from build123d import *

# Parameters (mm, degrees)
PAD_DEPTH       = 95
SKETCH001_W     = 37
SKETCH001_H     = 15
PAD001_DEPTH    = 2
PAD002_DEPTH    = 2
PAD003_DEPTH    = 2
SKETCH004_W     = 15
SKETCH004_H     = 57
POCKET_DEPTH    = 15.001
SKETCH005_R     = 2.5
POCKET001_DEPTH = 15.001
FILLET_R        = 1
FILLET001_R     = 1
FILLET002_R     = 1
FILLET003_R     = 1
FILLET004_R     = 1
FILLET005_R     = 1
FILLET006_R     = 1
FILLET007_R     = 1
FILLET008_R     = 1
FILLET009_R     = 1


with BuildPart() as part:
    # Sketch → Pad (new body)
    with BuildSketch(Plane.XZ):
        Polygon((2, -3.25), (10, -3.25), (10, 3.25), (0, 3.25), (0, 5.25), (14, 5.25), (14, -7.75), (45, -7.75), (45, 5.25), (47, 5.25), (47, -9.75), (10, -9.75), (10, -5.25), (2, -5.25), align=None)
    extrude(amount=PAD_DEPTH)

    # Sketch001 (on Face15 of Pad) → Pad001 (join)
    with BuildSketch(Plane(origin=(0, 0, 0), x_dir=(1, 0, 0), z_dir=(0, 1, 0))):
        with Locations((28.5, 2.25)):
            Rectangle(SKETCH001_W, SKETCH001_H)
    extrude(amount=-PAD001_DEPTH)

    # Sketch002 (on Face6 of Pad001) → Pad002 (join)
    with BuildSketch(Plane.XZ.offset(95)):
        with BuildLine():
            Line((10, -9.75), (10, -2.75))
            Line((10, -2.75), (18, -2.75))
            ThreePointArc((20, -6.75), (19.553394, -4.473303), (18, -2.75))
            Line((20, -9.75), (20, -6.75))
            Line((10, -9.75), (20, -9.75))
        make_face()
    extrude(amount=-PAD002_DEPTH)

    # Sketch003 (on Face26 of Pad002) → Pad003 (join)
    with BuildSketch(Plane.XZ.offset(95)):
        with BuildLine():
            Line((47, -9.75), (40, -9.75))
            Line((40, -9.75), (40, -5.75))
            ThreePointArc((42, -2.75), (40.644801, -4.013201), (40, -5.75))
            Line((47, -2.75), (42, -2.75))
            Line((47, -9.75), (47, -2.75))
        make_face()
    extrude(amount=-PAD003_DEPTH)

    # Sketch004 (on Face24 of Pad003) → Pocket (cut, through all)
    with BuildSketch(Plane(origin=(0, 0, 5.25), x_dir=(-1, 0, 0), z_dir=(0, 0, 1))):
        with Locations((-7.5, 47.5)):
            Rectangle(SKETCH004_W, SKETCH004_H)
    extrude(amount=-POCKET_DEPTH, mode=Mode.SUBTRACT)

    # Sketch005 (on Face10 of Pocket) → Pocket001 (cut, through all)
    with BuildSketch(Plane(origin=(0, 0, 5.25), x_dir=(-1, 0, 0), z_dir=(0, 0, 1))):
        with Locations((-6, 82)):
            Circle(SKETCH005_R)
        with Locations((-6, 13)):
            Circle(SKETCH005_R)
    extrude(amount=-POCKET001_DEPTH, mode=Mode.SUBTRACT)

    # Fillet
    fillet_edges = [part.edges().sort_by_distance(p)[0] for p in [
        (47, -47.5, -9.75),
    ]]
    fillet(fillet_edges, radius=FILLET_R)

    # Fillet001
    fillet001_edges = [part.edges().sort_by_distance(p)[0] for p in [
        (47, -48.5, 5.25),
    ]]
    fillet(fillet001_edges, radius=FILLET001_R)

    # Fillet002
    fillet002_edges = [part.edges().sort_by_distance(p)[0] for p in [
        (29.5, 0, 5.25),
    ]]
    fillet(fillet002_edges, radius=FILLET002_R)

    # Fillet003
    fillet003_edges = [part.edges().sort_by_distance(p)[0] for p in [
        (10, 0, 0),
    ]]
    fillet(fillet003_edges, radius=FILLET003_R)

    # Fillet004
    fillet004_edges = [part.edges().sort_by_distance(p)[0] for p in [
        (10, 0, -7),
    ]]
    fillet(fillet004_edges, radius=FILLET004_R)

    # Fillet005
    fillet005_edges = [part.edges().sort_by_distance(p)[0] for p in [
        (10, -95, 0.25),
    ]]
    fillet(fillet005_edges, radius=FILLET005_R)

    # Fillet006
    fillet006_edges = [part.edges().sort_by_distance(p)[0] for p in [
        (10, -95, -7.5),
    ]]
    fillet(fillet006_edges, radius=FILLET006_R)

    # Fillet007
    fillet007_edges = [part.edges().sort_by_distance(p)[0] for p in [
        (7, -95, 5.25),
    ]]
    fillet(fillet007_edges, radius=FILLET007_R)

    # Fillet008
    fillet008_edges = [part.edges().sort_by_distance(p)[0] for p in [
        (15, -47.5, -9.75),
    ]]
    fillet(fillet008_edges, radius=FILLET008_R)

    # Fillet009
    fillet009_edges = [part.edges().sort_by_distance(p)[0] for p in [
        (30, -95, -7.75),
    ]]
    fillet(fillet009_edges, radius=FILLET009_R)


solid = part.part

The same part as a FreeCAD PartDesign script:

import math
import FreeCAD as App
import Part
import Sketcher
from FreeCAD import Vector


def edges_at(feature, points):
    """Names of the edges that pass closest to the given points."""
    edges = feature.Shape.Edges
    near = lambda p: min(range(len(edges)), key=lambda i: edges[i].distToShape(Part.Vertex(*p))[0])
    return sorted({f"Edge{near(p) + 1}" for p in points})

doc = App.newDocument("Part")
params = doc.addObject("Spreadsheet::Sheet", "Params")
for row, (alias, value) in enumerate([
    ("sketch1_width", "8 mm"),
    ("sketch1_width2", "37 mm"),
    ("sketch1_width3", "2 mm"),
    ("sketch1_width4", "31 mm"),
    ("sketch1_width5", "14 mm"),
    ("pad1_length", "95 mm"),
    ("sketch2_width", "37 mm"),
    ("sketch2_height", "15 mm"),
    ("pad2_length", "2 mm"),
    ("sketch3_width", "10 mm"),
    ("sketch3_width2", "8 mm"),
    ("sketch3_height", "7 mm"),
    ("sketch3_height2", "3 mm"),
    ("sketch3_radius", "4.35 mm"),
    ("pad3_length", "2 mm"),
    ("sketch4_width", "7 mm"),
    ("sketch4_width2", "5 mm"),
    ("sketch4_height", "4 mm"),
    ("pad4_length", "2 mm"),
    ("sketch5_width", "15 mm"),
    ("sketch5_height", "57 mm"),
    ("sketch6_diameter", "5 mm"),
    ("fillet_radius", "1 mm"),
    ("fillet2_radius", "1 mm"),
    ("fillet3_radius", "1 mm"),
    ("fillet4_radius", "1 mm"),
    ("fillet5_radius", "1 mm"),
    ("fillet6_radius", "1 mm"),
    ("fillet7_radius", "1 mm"),
    ("fillet8_radius", "1 mm"),
    ("fillet9_radius", "1 mm"),
    ("fillet10_radius", "1 mm"),
], start=1):
    params.set(f"A{row}", alias)
    params.set(f"B{row}", "=" + value)
    params.setAlias(f"B{row}", alias)

body = doc.addObject("PartDesign::Body", "Body")

# Sketch on XZ plane
sketch1 = body.newObject("Sketcher::SketchObject", "Sketch")
sketch1.AttachmentSupport = (doc.getObject("XZ_Plane"), [""])
sketch1.MapMode = "FlatFace"
sketch1.addGeometry([
    Part.LineSegment(Vector(10, -3.25, 0), Vector(2, -3.25, 0)),  # 0
    Part.LineSegment(Vector(2, -3.25, 0), Vector(2, -5.25, 0)),  # 1
    Part.LineSegment(Vector(2, -5.25, 0), Vector(10, -5.25, 0)),  # 2
    Part.LineSegment(Vector(10, -5.25, 0), Vector(10, -9.75, 0)),  # 3
    Part.LineSegment(Vector(10, -9.75, 0), Vector(47, -9.75, 0)),  # 4
    Part.LineSegment(Vector(47, -9.75, 0), Vector(47, 5.25, 0)),  # 5
    Part.LineSegment(Vector(47, 5.25, 0), Vector(45, 5.25, 0)),  # 6
    Part.LineSegment(Vector(45, 5.25, 0), Vector(45, -7.75, 0)),  # 7
    Part.LineSegment(Vector(45, -7.75, 0), Vector(14, -7.75, 0)),  # 8
    Part.LineSegment(Vector(14, -7.75, 0), Vector(14, 5.25, 0)),  # 9
    Part.LineSegment(Vector(14, 5.25, 0), Vector(0, 5.25, 0)),  # 10
    Part.LineSegment(Vector(0, 5.25, 0), Vector(0, 3.25, 0)),  # 11
    Part.LineSegment(Vector(0, 3.25, 0), Vector(10, 3.25, 0)),  # 12
    Part.LineSegment(Vector(10, 3.25, 0), Vector(10, -3.25, 0)),  # 13
], False)
sketch1.addConstraint([
    Sketcher.Constraint("Coincident", 0, 2, 1, 1),
    Sketcher.Constraint("Coincident", 1, 2, 2, 1),
    Sketcher.Constraint("Coincident", 2, 2, 3, 1),
    Sketcher.Constraint("Coincident", 3, 2, 4, 1),
    Sketcher.Constraint("Coincident", 4, 2, 5, 1),
    Sketcher.Constraint("Coincident", 5, 2, 6, 1),
    Sketcher.Constraint("Coincident", 6, 2, 7, 1),
    Sketcher.Constraint("Coincident", 7, 2, 8, 1),
    Sketcher.Constraint("Coincident", 8, 2, 9, 1),
    Sketcher.Constraint("Coincident", 9, 2, 10, 1),
    Sketcher.Constraint("Coincident", 10, 2, 11, 1),
    Sketcher.Constraint("Coincident", 11, 2, 12, 1),
    Sketcher.Constraint("Coincident", 12, 2, 13, 1),
    Sketcher.Constraint("Coincident", 13, 2, 0, 1),
    Sketcher.Constraint("Horizontal", 0),
    Sketcher.Constraint("Vertical", 1),
    Sketcher.Constraint("Horizontal", 2),
    Sketcher.Constraint("Vertical", 3),
    Sketcher.Constraint("Horizontal", 4),
    Sketcher.Constraint("Vertical", 5),
    Sketcher.Constraint("Horizontal", 6),
    Sketcher.Constraint("Vertical", 7),
    Sketcher.Constraint("Horizontal", 8),
    Sketcher.Constraint("Vertical", 9),
    Sketcher.Constraint("Horizontal", 10),
    Sketcher.Constraint("Vertical", 11),
    Sketcher.Constraint("Horizontal", 12),
    Sketcher.Constraint("Vertical", 13),
    Sketcher.Constraint("PointOnObject", 10, 2, -2),
    Sketcher.Constraint("Horizontal", 6, 2, 9, 2),
    Sketcher.Constraint("Vertical", 3, 2, 12, 2),
    Sketcher.Constraint("Equal", 6, 1),
    Sketcher.Constraint("Equal", 1, 11),
    Sketcher.Constraint("DistanceX", 0, 2, 0, 1, 8.0),
    Sketcher.Constraint("DistanceX", 4, 1, 4, 2, 37.0),
    Sketcher.Constraint("DistanceX", 6, 2, 6, 1, 2.0),
    Sketcher.Constraint("DistanceX", 8, 2, 8, 1, 31.0),
    Sketcher.Constraint("DistanceX", 10, 2, 10, 1, 14.0),
    Sketcher.Constraint("DistanceY", 5, 1, 5, 2, 15.0),
    Sketcher.Constraint("DistanceY", 7, 2, 7, 1, 13.0),
    Sketcher.Constraint("DistanceY", 3, 2, 3, 1, 4.5),
    Sketcher.Constraint("DistanceY", 0, 2, -1, 1, 3.25),
])
sketch1.setExpression("Constraints[33]", "Params.sketch1_width")
sketch1.setExpression("Constraints[34]", "Params.sketch1_width2")
sketch1.setExpression("Constraints[35]", "Params.sketch1_width3")
sketch1.setExpression("Constraints[36]", "Params.sketch1_width4")
sketch1.setExpression("Constraints[37]", "Params.sketch1_width5")
pad1 = body.newObject("PartDesign::Pad", "Pad")
pad1.Profile = sketch1
pad1.setExpression("Length", "Params.pad1_length")

# Sketch on XZ plane
sketch2 = body.newObject("Sketcher::SketchObject", "Sketch001")
sketch2.AttachmentSupport = (doc.getObject("XZ_Plane"), [""])
sketch2.MapMode = "FlatFace"
sketch2.addGeometry([
    Part.LineSegment(Vector(10, -9.75, 0), Vector(10, 5.25, 0)),
    Part.LineSegment(Vector(10, 5.25, 0), Vector(47, 5.25, 0)),
    Part.LineSegment(Vector(47, 5.25, 0), Vector(47, -9.75, 0)),
    Part.LineSegment(Vector(47, -9.75, 0), Vector(10, -9.75, 0)),
], False)
sketch2.addConstraint([
    Sketcher.Constraint("Coincident", 0, 2, 1, 1),
    Sketcher.Constraint("Coincident", 1, 2, 2, 1),
    Sketcher.Constraint("Coincident", 2, 2, 3, 1),
    Sketcher.Constraint("Coincident", 3, 2, 0, 1),
    Sketcher.Constraint("Vertical", 0),
    Sketcher.Constraint("Horizontal", 1),
    Sketcher.Constraint("Vertical", 2),
    Sketcher.Constraint("Horizontal", 3),
    Sketcher.Constraint("DistanceX", 1, 1, 1, 2, 37.0),
    Sketcher.Constraint("DistanceY", 0, 1, 0, 2, 15.0),
    Sketcher.Constraint("DistanceX", -1, 1, 0, 2, 10.0),
    Sketcher.Constraint("DistanceY", -1, 1, 0, 2, 5.25),
])
sketch2.setExpression("Constraints[8]", "Params.sketch2_width")
sketch2.setExpression("Constraints[9]", "Params.sketch2_height")
pad2 = body.newObject("PartDesign::Pad", "Pad001")
pad2.Profile = sketch2
pad2.setExpression("Length", "Params.pad2_length")

# Sketch on XZ plane
sketch3 = body.newObject("Sketcher::SketchObject", "Sketch002")
sketch3.AttachmentSupport = (doc.getObject("XZ_Plane"), [""])
sketch3.MapMode = "FlatFace"
sketch3.AttachmentOffset = App.Placement(Vector(0, 0, 95), App.Rotation())
sketch3.addGeometry([
    Part.LineSegment(Vector(10, -2.75, 0), Vector(10, -9.75, 0)),  # 0
    Part.LineSegment(Vector(10, -9.75, 0), Vector(20, -9.75, 0)),  # 1
    Part.LineSegment(Vector(20, -9.75, 0), Vector(20, -6.75, 0)),  # 2
    Part.ArcOfCircle(Part.Circle(Vector(15.662635, -6.418682, 0), Vector(0, 0, 1), 4.35), math.radians(-4.368162), math.radians(57.498265)),  # 3
    Part.LineSegment(Vector(18, -2.75, 0), Vector(10, -2.75, 0)),  # 4
], False)
sketch3.addConstraint([
    Sketcher.Constraint("Coincident", 0, 2, 1, 1),
    Sketcher.Constraint("Coincident", 1, 2, 2, 1),
    Sketcher.Constraint("Coincident", 2, 2, 3, 1),
    Sketcher.Constraint("Coincident", 3, 2, 4, 1),
    Sketcher.Constraint("Coincident", 4, 2, 0, 1),
    Sketcher.Constraint("Vertical", 0),
    Sketcher.Constraint("Horizontal", 1),
    Sketcher.Constraint("Vertical", 2),
    Sketcher.Constraint("Horizontal", 4),
    Sketcher.Constraint("DistanceX", 1, 1, 1, 2, 10.0),
    Sketcher.Constraint("DistanceX", 4, 2, 4, 1, 8.0),
    Sketcher.Constraint("DistanceY", 0, 2, 0, 1, 7.0),
    Sketcher.Constraint("DistanceY", 2, 1, 2, 2, 3.0),
    Sketcher.Constraint("Radius", 3, 4.35),
    Sketcher.Constraint("DistanceX", -1, 1, 0, 2, 10.0),
    Sketcher.Constraint("DistanceY", 0, 2, -1, 1, 9.75),
])
sketch3.setExpression("Constraints[9]", "Params.sketch3_width")
sketch3.setExpression("Constraints[10]", "Params.sketch3_width2")
sketch3.setExpression("Constraints[11]", "Params.sketch3_height")
sketch3.setExpression("Constraints[12]", "Params.sketch3_height2")
sketch3.setExpression("Constraints[13]", "Params.sketch3_radius")
pad3 = body.newObject("PartDesign::Pad", "Pad002")
pad3.Profile = sketch3
pad3.setExpression("Length", "Params.pad3_length")
pad3.Reversed = True

# Sketch on XZ plane
sketch4 = body.newObject("Sketcher::SketchObject", "Sketch003")
sketch4.AttachmentSupport = (doc.getObject("XZ_Plane"), [""])
sketch4.MapMode = "FlatFace"
sketch4.AttachmentOffset = App.Placement(Vector(0, 0, 95), App.Rotation())
sketch4.addGeometry([
    Part.LineSegment(Vector(40, -9.75, 0), Vector(47, -9.75, 0)),  # 0
    Part.LineSegment(Vector(47, -9.75, 0), Vector(47, -2.75, 0)),  # 1
    Part.LineSegment(Vector(47, -2.75, 0), Vector(42, -2.75, 0)),  # 2
    Part.ArcOfCircle(Part.Circle(Vector(43.989641, -6.243094, 0), Vector(0, 0, 1), 4.019997), math.radians(119.665522), math.radians(172.954343)),  # 3
    Part.LineSegment(Vector(40, -5.75, 0), Vector(40, -9.75, 0)),  # 4
], False)
sketch4.addConstraint([
    Sketcher.Constraint("Coincident", 0, 2, 1, 1),
    Sketcher.Constraint("Coincident", 1, 2, 2, 1),
    Sketcher.Constraint("Coincident", 2, 2, 3, 1),
    Sketcher.Constraint("Coincident", 3, 2, 4, 1),
    Sketcher.Constraint("Coincident", 4, 2, 0, 1),
    Sketcher.Constraint("Horizontal", 0),
    Sketcher.Constraint("Vertical", 1),
    Sketcher.Constraint("Horizontal", 2),
    Sketcher.Constraint("Vertical", 4),
    Sketcher.Constraint("Equal", 0, 1),
    Sketcher.Constraint("DistanceX", 0, 1, 0, 2, 7.0),
    Sketcher.Constraint("DistanceX", 2, 2, 2, 1, 5.0),
    Sketcher.Constraint("DistanceY", 4, 2, 4, 1, 4.0),
    Sketcher.Constraint("DistanceX", -1, 1, 0, 2, 47.0),
    Sketcher.Constraint("DistanceY", 0, 2, -1, 1, 9.75),
    Sketcher.Constraint("Radius", 3, 4.019997),
])
sketch4.setExpression("Constraints[10]", "Params.sketch4_width")
sketch4.setExpression("Constraints[11]", "Params.sketch4_width2")
sketch4.setExpression("Constraints[12]", "Params.sketch4_height")
pad4 = body.newObject("PartDesign::Pad", "Pad003")
pad4.Profile = sketch4
pad4.setExpression("Length", "Params.pad4_length")
pad4.Reversed = True

# Sketch on XY plane
sketch5 = body.newObject("Sketcher::SketchObject", "Sketch004")
sketch5.AttachmentSupport = (doc.getObject("XY_Plane"), [""])
sketch5.MapMode = "FlatFace"
sketch5.AttachmentOffset = App.Placement(Vector(0, 0, 5.25), App.Rotation())
sketch5.addGeometry([
    Part.LineSegment(Vector(15, -76, 0), Vector(15, -19, 0)),
    Part.LineSegment(Vector(15, -19, 0), Vector(0, -19, 0)),
    Part.LineSegment(Vector(0, -19, 0), Vector(0, -76, 0)),
    Part.LineSegment(Vector(0, -76, 0), Vector(15, -76, 0)),
], False)
sketch5.addConstraint([
    Sketcher.Constraint("Coincident", 0, 2, 1, 1),
    Sketcher.Constraint("Coincident", 1, 2, 2, 1),
    Sketcher.Constraint("Coincident", 2, 2, 3, 1),
    Sketcher.Constraint("Coincident", 3, 2, 0, 1),
    Sketcher.Constraint("Vertical", 0),
    Sketcher.Constraint("Horizontal", 1),
    Sketcher.Constraint("Vertical", 2),
    Sketcher.Constraint("Horizontal", 3),
    Sketcher.Constraint("PointOnObject", 1, 2, -2),
    Sketcher.Constraint("DistanceX", 1, 2, 1, 1, 15.0),
    Sketcher.Constraint("DistanceY", 0, 1, 0, 2, 57.0),
    Sketcher.Constraint("DistanceY", 0, 2, -1, 1, 19.0),
])
sketch5.setExpression("Constraints[9]", "Params.sketch5_width")
sketch5.setExpression("Constraints[10]", "Params.sketch5_height")
pocket1 = body.newObject("PartDesign::Pocket", "Pocket")
pocket1.Profile = sketch5
pocket1.Type = "ThroughAll"

# Sketch on XY plane
sketch6 = body.newObject("Sketcher::SketchObject", "Sketch005")
sketch6.AttachmentSupport = (doc.getObject("XY_Plane"), [""])
sketch6.MapMode = "FlatFace"
sketch6.AttachmentOffset = App.Placement(Vector(0, 0, 5.25), App.Rotation())
sketch6.addGeometry([
    Part.Circle(Vector(6, -82, 0), Vector(0, 0, 1), 2.5),
    Part.Circle(Vector(6, -13, 0), Vector(0, 0, 1), 2.5),
], False)
sketch6.addConstraint([
    Sketcher.Constraint("Equal", 0, 1),
    Sketcher.Constraint("Vertical", 0, 3, 1, 3),
    Sketcher.Constraint("Diameter", 0, 5.0),
    Sketcher.Constraint("DistanceX", -1, 1, 0, 3, 6.0),
    Sketcher.Constraint("DistanceY", 0, 3, -1, 1, 82.0),
    Sketcher.Constraint("DistanceY", 1, 3, -1, 1, 13.0),
])
sketch6.setExpression("Constraints[2]", "Params.sketch6_diameter")
pocket2 = body.newObject("PartDesign::Pocket", "Pocket001")
pocket2.Profile = sketch6
pocket2.Type = "ThroughAll"
doc.recompute()

fillet = body.newObject("PartDesign::Fillet", "Fillet")
fillet.Base = (pocket2, edges_at(pocket2, [(47, -47.5, -9.75)]))
fillet.setExpression("Radius", "Params.fillet_radius")
doc.recompute()

fillet2 = body.newObject("PartDesign::Fillet", "Fillet001")
fillet2.Base = (fillet, edges_at(fillet, [(47, -47.5, 5.25)]))
fillet2.setExpression("Radius", "Params.fillet2_radius")
doc.recompute()

fillet3 = body.newObject("PartDesign::Fillet", "Fillet002")
fillet3.Base = (fillet2, edges_at(fillet2, [(23, 0, 5.25)]))
fillet3.setExpression("Radius", "Params.fillet3_radius")
doc.recompute()

fillet4 = body.newObject("PartDesign::Fillet", "Fillet003")
fillet4.Base = (fillet3, edges_at(fillet3, [(10, 0, 0)]))
fillet4.setExpression("Radius", "Params.fillet4_radius")
doc.recompute()

fillet5 = body.newObject("PartDesign::Fillet", "Fillet004")
fillet5.Base = (fillet4, edges_at(fillet4, [(10, 0, -7)]))
fillet5.setExpression("Radius", "Params.fillet5_radius")
doc.recompute()

fillet6 = body.newObject("PartDesign::Fillet", "Fillet005")
fillet6.Base = (fillet5, edges_at(fillet5, [(10, -95, 0)]))
fillet6.setExpression("Radius", "Params.fillet6_radius")
doc.recompute()

fillet7 = body.newObject("PartDesign::Fillet", "Fillet006")
fillet7.Base = (fillet6, edges_at(fillet6, [(10, -95, -7.5)]))
fillet7.setExpression("Radius", "Params.fillet7_radius")
doc.recompute()

fillet8 = body.newObject("PartDesign::Fillet", "Fillet007")
fillet8.Base = (fillet7, edges_at(fillet7, [(7, -95, 5.25)]))
fillet8.setExpression("Radius", "Params.fillet8_radius")
doc.recompute()

fillet9 = body.newObject("PartDesign::Fillet", "Fillet008")
fillet9.Base = (fillet8, edges_at(fillet8, [(15, -47.5, -9.75)]))
fillet9.setExpression("Radius", "Params.fillet9_radius")
doc.recompute()

fillet10 = body.newObject("PartDesign::Fillet", "Fillet009")
fillet10.Base = (fillet9, edges_at(fillet9, [(30, -95, -7.75)]))
fillet10.setExpression("Radius", "Params.fillet10_radius")

doc.recompute()
